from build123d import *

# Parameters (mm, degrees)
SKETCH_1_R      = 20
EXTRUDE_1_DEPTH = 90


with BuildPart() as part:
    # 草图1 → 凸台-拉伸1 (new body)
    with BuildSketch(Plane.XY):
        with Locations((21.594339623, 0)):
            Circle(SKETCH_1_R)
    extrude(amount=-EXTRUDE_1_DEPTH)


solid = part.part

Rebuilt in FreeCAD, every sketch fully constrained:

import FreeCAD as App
import Part
import Sketcher
from FreeCAD import Vector

doc = App.newDocument("Part")
body = doc.addObject("PartDesign::Body", "Body")

# Sketch on XY plane
sketch1 = body.newObject("Sketcher::SketchObject", "Sketch")
sketch1.AttachmentSupport = (doc.getObject("XY_Plane"), [""])
sketch1.MapMode = "FlatFace"
sketch1.addGeometry(Part.Circle(Vector(22, 0, 0), Vector(0, 0, 1), 20), False)
sketch1.addConstraint([
    Sketcher.Constraint("PointOnObject", 0, 3, -1),
    Sketcher.Constraint("Diameter", 0, 40.0),
    Sketcher.Constraint("DistanceX", -1, 1, 0, 3, 21.59434),
])
pad1 = body.newObject("PartDesign::Pad", "Pad")
pad1.Profile = sketch1
pad1.Length = 90
pad1.Reversed = True

doc.recompute()
